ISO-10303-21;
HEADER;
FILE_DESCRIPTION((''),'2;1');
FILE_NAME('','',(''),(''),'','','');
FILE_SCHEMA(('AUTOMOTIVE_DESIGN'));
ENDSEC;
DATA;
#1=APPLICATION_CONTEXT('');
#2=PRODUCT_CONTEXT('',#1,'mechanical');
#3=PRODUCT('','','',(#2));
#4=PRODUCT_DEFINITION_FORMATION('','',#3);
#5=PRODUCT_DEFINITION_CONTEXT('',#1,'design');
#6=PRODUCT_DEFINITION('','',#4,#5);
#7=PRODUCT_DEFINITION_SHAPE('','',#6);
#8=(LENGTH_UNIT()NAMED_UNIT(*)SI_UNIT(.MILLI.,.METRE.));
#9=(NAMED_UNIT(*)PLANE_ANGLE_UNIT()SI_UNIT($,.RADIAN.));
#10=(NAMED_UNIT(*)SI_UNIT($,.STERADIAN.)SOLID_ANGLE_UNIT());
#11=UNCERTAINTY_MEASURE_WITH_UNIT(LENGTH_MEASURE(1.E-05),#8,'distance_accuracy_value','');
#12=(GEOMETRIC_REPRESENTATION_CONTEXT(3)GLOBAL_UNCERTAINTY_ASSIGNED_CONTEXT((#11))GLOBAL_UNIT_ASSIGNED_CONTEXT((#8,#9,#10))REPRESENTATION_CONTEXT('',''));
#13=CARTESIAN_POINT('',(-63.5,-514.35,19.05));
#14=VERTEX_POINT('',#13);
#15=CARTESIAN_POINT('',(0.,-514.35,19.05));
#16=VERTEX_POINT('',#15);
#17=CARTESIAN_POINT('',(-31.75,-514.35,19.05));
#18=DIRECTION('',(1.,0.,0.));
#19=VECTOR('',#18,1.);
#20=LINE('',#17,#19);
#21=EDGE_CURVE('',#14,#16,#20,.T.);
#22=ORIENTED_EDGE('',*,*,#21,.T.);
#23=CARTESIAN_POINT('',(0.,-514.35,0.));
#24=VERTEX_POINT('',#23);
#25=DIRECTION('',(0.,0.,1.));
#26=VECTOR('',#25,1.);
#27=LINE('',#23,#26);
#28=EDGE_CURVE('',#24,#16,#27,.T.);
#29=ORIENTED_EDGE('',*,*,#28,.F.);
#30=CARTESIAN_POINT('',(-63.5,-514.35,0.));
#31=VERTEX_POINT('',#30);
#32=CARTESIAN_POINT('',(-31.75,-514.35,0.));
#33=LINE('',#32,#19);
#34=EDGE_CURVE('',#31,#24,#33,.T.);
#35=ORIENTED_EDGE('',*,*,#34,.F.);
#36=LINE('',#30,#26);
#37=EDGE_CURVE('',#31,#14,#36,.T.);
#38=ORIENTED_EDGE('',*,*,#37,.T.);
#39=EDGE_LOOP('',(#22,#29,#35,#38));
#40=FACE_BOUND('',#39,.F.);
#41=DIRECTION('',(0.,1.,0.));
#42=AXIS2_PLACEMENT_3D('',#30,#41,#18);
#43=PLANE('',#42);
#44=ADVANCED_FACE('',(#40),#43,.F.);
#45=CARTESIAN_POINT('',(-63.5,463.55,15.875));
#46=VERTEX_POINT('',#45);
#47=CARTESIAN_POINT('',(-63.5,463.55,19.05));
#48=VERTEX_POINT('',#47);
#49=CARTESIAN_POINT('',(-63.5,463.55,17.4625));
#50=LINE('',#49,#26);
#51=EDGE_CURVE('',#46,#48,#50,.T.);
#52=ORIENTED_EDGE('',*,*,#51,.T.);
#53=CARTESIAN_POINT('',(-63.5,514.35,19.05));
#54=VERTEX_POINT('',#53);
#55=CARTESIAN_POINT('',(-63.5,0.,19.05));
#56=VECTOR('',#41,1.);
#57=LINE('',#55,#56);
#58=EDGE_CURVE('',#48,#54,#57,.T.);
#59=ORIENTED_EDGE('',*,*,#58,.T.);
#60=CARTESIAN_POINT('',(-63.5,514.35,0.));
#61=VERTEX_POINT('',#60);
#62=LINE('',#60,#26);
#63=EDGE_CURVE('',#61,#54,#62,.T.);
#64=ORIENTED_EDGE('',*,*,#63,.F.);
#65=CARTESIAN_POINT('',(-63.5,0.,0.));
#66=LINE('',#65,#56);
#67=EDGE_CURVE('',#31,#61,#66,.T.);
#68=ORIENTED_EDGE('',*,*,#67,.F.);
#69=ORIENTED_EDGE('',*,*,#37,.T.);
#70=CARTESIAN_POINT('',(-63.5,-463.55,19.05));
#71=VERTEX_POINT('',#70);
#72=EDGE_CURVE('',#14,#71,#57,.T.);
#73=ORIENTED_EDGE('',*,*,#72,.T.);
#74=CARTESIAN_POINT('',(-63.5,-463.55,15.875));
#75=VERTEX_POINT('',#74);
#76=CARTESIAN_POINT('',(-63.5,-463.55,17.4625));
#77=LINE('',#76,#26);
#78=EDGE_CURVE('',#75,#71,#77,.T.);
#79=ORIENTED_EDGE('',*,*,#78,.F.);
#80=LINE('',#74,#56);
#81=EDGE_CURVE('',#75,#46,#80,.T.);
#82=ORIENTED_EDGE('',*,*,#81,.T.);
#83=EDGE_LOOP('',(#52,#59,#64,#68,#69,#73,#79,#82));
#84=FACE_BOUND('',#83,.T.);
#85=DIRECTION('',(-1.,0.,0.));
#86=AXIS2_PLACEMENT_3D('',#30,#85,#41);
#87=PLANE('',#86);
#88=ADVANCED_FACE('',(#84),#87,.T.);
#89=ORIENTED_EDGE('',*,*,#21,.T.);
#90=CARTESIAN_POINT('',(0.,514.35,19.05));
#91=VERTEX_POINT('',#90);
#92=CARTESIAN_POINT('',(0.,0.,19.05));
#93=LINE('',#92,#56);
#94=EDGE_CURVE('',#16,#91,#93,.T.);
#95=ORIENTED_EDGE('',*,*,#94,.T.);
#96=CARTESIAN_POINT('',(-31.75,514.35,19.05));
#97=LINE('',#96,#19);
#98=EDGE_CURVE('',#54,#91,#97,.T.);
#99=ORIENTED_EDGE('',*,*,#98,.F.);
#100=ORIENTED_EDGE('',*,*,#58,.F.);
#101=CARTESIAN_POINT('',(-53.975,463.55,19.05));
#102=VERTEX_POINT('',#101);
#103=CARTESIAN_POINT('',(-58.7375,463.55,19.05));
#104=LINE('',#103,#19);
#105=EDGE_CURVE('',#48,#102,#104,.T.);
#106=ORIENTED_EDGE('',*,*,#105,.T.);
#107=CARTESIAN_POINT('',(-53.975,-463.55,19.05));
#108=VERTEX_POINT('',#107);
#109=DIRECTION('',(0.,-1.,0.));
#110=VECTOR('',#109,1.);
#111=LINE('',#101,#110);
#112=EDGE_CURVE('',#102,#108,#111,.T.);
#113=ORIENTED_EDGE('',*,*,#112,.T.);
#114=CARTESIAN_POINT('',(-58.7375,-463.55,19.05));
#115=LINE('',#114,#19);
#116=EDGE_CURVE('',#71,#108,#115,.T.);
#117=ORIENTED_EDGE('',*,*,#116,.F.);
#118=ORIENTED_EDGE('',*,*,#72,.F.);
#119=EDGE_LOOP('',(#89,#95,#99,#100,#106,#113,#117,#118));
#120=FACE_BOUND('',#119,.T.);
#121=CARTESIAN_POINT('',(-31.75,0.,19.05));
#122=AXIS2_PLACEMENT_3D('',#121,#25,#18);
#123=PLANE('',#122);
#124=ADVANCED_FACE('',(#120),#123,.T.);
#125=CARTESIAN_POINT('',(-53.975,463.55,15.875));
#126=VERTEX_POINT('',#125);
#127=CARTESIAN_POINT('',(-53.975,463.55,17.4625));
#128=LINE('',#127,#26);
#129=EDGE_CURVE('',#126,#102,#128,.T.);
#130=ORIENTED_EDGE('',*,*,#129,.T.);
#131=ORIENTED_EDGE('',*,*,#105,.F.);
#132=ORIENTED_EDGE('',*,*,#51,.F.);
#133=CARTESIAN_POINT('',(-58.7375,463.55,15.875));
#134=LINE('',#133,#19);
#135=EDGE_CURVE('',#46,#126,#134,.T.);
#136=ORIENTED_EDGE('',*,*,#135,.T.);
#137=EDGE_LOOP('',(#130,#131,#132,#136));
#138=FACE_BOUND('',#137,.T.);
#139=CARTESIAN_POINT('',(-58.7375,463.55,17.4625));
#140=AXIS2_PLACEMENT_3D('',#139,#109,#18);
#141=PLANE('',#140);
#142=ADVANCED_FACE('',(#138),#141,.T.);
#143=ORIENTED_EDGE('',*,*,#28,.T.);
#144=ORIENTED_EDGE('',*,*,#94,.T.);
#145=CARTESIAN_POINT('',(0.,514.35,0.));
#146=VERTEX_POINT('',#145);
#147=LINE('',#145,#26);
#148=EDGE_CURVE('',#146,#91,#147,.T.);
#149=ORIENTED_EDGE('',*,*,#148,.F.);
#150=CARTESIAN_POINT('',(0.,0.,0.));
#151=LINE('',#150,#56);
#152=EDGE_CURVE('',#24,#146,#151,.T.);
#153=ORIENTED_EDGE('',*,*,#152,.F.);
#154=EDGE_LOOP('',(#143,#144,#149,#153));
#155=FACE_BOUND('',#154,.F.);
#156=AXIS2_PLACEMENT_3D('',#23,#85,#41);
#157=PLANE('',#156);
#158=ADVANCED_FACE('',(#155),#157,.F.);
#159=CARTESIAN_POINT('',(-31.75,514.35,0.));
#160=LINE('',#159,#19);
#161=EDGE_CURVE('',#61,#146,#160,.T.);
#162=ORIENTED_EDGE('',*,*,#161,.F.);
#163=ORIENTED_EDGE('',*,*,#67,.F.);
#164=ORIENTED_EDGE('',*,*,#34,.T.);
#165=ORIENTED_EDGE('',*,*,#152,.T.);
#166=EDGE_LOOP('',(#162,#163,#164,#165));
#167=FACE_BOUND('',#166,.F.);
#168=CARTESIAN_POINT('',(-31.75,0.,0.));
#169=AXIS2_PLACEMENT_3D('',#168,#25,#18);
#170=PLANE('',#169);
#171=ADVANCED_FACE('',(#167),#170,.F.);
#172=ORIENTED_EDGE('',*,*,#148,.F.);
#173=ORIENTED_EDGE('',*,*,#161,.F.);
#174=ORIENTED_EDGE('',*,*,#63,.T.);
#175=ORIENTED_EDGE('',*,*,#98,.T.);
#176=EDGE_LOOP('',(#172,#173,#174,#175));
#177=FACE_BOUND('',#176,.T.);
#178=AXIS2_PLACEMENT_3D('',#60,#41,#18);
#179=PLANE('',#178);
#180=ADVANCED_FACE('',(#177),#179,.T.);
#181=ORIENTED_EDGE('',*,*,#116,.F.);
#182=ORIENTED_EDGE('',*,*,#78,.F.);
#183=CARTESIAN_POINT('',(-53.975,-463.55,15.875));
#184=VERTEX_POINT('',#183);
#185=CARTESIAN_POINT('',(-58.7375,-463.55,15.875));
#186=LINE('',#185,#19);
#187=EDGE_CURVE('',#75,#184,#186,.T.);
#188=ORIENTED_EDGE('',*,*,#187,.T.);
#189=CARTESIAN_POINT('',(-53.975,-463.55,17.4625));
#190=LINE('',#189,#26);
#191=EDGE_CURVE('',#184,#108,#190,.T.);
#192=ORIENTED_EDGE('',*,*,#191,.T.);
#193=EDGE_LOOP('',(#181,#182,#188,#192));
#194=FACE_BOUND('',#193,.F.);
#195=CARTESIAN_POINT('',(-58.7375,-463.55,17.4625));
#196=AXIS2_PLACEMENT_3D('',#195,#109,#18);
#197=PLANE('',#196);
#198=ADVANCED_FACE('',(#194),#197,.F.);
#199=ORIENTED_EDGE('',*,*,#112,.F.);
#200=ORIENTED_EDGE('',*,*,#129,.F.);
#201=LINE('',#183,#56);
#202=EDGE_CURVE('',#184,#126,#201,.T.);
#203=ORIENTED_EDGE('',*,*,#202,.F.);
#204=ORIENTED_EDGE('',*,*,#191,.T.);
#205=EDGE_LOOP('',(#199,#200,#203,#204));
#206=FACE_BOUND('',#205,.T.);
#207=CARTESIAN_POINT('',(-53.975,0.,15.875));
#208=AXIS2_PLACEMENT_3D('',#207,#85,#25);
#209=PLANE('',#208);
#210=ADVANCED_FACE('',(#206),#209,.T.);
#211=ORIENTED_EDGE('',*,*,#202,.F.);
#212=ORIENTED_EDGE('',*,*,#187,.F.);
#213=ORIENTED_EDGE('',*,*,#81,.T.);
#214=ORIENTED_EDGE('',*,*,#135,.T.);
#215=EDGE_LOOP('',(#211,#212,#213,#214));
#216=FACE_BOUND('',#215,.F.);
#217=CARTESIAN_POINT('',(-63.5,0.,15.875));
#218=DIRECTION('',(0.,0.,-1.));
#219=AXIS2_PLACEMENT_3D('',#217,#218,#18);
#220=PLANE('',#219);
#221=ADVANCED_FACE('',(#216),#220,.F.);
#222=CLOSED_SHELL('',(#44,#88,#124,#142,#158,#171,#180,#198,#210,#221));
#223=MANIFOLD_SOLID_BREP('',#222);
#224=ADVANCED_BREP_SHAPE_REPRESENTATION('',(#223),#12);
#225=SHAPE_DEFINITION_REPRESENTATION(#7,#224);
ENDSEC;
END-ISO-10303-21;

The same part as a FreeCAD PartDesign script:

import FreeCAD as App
import Part
import Sketcher
Q = App.Units.Quantity

doc = App.newDocument("Part")
params = doc.addObject("Spreadsheet::Sheet", "Params")
for row, (alias, value) in enumerate([
    ("sketch1_width", "2.5 in"),
    ("sketch1_height", "40.5 in"),
    ("pad1_length", "0.75 in"),
    ("sketch2_width", "0.375 in"),
    ("sketch2_height", "0.125 in"),
    ("pocket1_length", "18.25 in"),
    ("pocket1_length2", "18.25 in"),
], start=1):
    params.set(f"A{row}", alias)
    params.set(f"B{row}", "=" + value)
    params.setAlias(f"B{row}", alias)

body = doc.addObject("PartDesign::Body", "Body")

# Sketch on XY plane
sketch1 = body.newObject("Sketcher::SketchObject", "Sketch")
sketch1.AttachmentSupport = (doc.getObject("XY_Plane"), [""])
sketch1.MapMode = "FlatFace"
sketch1.addGeometry(Part.LineSegment(App.Vector(-64, 514, 0), App.Vector(-64, -514, 0)), False)
sketch1.addGeometry(Part.LineSegment(App.Vector(-64, -514, 0), App.Vector(0, -514, 0)), False)
sketch1.addGeometry(Part.LineSegment(App.Vector(0, -514, 0), App.Vector(0, 514, 0)), False)
sketch1.addGeometry(Part.LineSegment(App.Vector(0, 514, 0), App.Vector(-64, 514, 0)), False)
sketch1.addConstraint(Sketcher.Constraint("Coincident", 0, 2, 1, 1))
sketch1.addConstraint(Sketcher.Constraint("Coincident", 1, 2, 2, 1))
sketch1.addConstraint(Sketcher.Constraint("Coincident", 2, 2, 3, 1))
sketch1.addConstraint(Sketcher.Constraint("Coincident", 3, 2, 0, 1))
sketch1.addConstraint(Sketcher.Constraint("Vertical", 0))
sketch1.addConstraint(Sketcher.Constraint("Horizontal", 1))
sketch1.addConstraint(Sketcher.Constraint("Vertical", 2))
sketch1.addConstraint(Sketcher.Constraint("Horizontal", 3))
sketch1.addConstraint(Sketcher.Constraint("Symmetric", 1, 2, 2, 2, -1, 1))
sketch1.addConstraint(Sketcher.Constraint("DistanceX", 1, 1, 1, 2, Q("2.5 in")))
sketch1.addConstraint(Sketcher.Constraint("DistanceY", 0, 2, 0, 1, Q("40.5 in")))
sketch1.setExpression("Constraints[9]", "Params.sketch1_width")
sketch1.setExpression("Constraints[10]", "Params.sketch1_height")
pad1 = body.newObject("PartDesign::Pad", "Pad")
pad1.Profile = sketch1
pad1.setExpression("Length", "Params.pad1_length")

# Sketch on XZ plane
sketch2 = body.newObject("Sketcher::SketchObject", "Sketch001")
sketch2.AttachmentSupport = (doc.getObject("XZ_Plane"), [""])
sketch2.MapMode = "FlatFace"
sketch2.addGeometry(Part.LineSegment(App.Vector(-63.5, 19.1, 0), App.Vector(-63.5, 15.9, 0)), False)
sketch2.addGeometry(Part.LineSegment(App.Vector(-63.5, 15.9, 0), App.Vector(-54, 15.9, 0)), False)
sketch2.addGeometry(Part.LineSegment(App.Vector(-54, 15.9, 0), App.Vector(-54, 19.1, 0)), False)
sketch2.addGeometry(Part.LineSegment(App.Vector(-54, 19.1, 0), App.Vector(-63.5, 19.1, 0)), False)
sketch2.addConstraint(Sketcher.Constraint("Coincident", 0, 2, 1, 1))
sketch2.addConstraint(Sketcher.Constraint("Coincident", 1, 2, 2, 1))
sketch2.addConstraint(Sketcher.Constraint("Coincident", 2, 2, 3, 1))
sketch2.addConstraint(Sketcher.Constraint("Coincident", 3, 2, 0, 1))
sketch2.addConstraint(Sketcher.Constraint("Vertical", 0))
sketch2.addConstraint(Sketcher.Constraint("Horizontal", 1))
sketch2.addConstraint(Sketcher.Constraint("Vertical", 2))
sketch2.addConstraint(Sketcher.Constraint("Horizontal", 3))
sketch2.addConstraint(Sketcher.Constraint("DistanceX", 0, 2, -1, 1, Q("2.5 in")))
sketch2.addConstraint(Sketcher.Constraint("DistanceX", 1, 1, 1, 2, Q("0.375 in")))
sketch2.addConstraint(Sketcher.Constraint("DistanceY", 0, 2, 0, 1, Q("0.125 in")))
sketch2.addConstraint(Sketcher.Constraint("DistanceY", -1, 1, 2, 2, Q("0.75 in")))
sketch2.setExpression("Constraints[9]", "Params.sketch2_width")
sketch2.setExpression("Constraints[10]", "Params.sketch2_height")
pocket1 = body.newObject("PartDesign::Pocket", "Pocket")
pocket1.Profile = sketch2
pocket1.Type = "TwoLengths"
pocket1.setExpression("Length", "Params.pocket1_length")
pocket1.setExpression("Length2", "Params.pocket1_length2")
pocket1.Reversed = True

doc.recompute()
